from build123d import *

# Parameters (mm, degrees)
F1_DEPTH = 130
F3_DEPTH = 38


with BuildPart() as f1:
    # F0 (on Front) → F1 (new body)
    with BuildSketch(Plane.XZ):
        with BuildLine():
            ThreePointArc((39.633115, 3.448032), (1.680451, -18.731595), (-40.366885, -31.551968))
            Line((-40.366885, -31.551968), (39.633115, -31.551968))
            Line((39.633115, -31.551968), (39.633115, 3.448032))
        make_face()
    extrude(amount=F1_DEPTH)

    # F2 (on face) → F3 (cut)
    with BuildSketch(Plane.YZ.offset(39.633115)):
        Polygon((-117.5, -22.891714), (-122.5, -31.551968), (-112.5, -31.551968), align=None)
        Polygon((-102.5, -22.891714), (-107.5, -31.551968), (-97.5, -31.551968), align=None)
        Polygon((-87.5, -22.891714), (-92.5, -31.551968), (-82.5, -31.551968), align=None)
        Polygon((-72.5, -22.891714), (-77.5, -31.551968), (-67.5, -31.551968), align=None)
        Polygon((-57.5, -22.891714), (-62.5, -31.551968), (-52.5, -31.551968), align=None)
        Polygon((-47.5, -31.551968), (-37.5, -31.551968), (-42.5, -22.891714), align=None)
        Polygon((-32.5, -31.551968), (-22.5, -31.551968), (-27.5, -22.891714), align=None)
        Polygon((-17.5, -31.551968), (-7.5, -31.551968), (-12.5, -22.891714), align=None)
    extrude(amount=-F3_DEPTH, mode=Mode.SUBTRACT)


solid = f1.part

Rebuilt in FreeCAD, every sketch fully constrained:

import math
import FreeCAD as App
import Part
import Sketcher

V = App.Vector
Q = App.Units.Quantity


def add_polygon(sketch, points):
    """Adds a closed chain of lines whose ends are joined by coincident constraints."""
    first, n = sketch.GeometryCount, len(points)
    for a, b in zip(points, points[1:] + points[:1]):
        sketch.addGeometry(Part.LineSegment(App.Vector(*a, 0), App.Vector(*b, 0)), False)
    for i in range(n):
        sketch.addConstraint(Sketcher.Constraint("Coincident", first + i, 2, first + (i + 1) % n, 1))

doc = App.newDocument("Part")
body = doc.addObject("PartDesign::Body", "Body")

sketch1 = body.newObject("Sketcher::SketchObject", "Sketch")
sketch1.AttachmentSupport = (doc.getObject("XZ_Plane"), [""])
sketch1.MapMode = "FlatFace"
sketch1.addGeometry(Part.ArcOfCircle(Part.Circle(V(-74, 155, 0), V(0, 0, 1), 189), math.radians(-80), math.radians(-53)), False)
sketch1.addGeometry(Part.LineSegment(V(-40, -32, 0), V(40, -32, 0)), False)
sketch1.addGeometry(Part.LineSegment(V(40, -32, 0), V(40, 3, 0)), False)
sketch1.addConstraint(Sketcher.Constraint("Coincident", 0, 1, 1, 1))
sketch1.addConstraint(Sketcher.Constraint("Coincident", 1, 2, 2, 1))
sketch1.addConstraint(Sketcher.Constraint("Coincident", 2, 2, 0, 2))
sketch1.addConstraint(Sketcher.Constraint("Horizontal", 1))
sketch1.addConstraint(Sketcher.Constraint("Vertical", 2))
sketch1.addConstraint(Sketcher.Constraint("DistanceX", 1, 1, 1, 2, Q("80 mm")))
sketch1.addConstraint(Sketcher.Constraint("DistanceY", 2, 1, 2, 2, Q("35 mm")))
sketch1.addConstraint(Sketcher.Constraint("Radius", 0, Q("189.152686 mm")))
sketch1.addConstraint(Sketcher.Constraint("DistanceY", -1, 1, 2, 2, Q("3.448032 mm")))
sketch1.addConstraint(Sketcher.Constraint("DistanceX", 0, 3, -1, 1, Q("74.135507 mm")))
pad1 = body.newObject("PartDesign::Pad", "Pad")
pad1.Profile = sketch1
pad1.Length = 130

sketch2 = body.newObject("Sketcher::SketchObject", "Sketch001")
sketch2.AttachmentSupport = (doc.getObject("YZ_Plane"), [""])
sketch2.MapMode = "FlatFace"
sketch2.AttachmentOffset = App.Placement(V(0, 0, 39.633115), App.Rotation())
add_polygon(sketch2, [(-118, -23), (-122, -32), (-112, -32)])
add_polygon(sketch2, [(-102, -23), (-108, -32), (-98, -32)])
add_polygon(sketch2, [(-88, -23), (-92, -32), (-82, -32)])
add_polygon(sketch2, [(-72, -23), (-78, -32), (-68, -32)])
add_polygon(sketch2, [(-58, -23), (-62, -32), (-52, -32)])
add_polygon(sketch2, [(-48, -32), (-38, -32), (-42, -23)])
add_polygon(sketch2, [(-32, -32), (-22, -32), (-28, -23)])
add_polygon(sketch2, [(-18, -32), (-8, -32), (-12, -23)])
sketch2.addConstraint(Sketcher.Constraint("Horizontal", 1))
sketch2.addConstraint(Sketcher.Constraint("Horizontal", 4))
sketch2.addConstraint(Sketcher.Constraint("Horizontal", 7))
sketch2.addConstraint(Sketcher.Constraint("Horizontal", 10))
sketch2.addConstraint(Sketcher.Constraint("Horizontal", 13))
sketch2.addConstraint(Sketcher.Constraint("Horizontal", 15))
sketch2.addConstraint(Sketcher.Constraint("Horizontal", 18))
sketch2.addConstraint(Sketcher.Constraint("Horizontal", 21))
sketch2.addConstraint(Sketcher.Constraint("Parallel", 0, 3))
sketch2.addConstraint(Sketcher.Constraint("Parallel", 2, 5))
sketch2.addConstraint(Sketcher.Constraint("Parallel", 3, 6))
sketch2.addConstraint(Sketcher.Constraint("Parallel", 5, 8))
sketch2.addConstraint(Sketcher.Constraint("Parallel", 6, 9))
sketch2.addConstraint(Sketcher.Constraint("Parallel", 8, 11))
sketch2.addConstraint(Sketcher.Constraint("Parallel", 9, 12))
sketch2.addConstraint(Sketcher.Constraint("Parallel", 11, 14))
sketch2.addConstraint(Sketcher.Constraint("Parallel", 14, 16))
sketch2.addConstraint(Sketcher.Constraint("Parallel", 12, 17))
sketch2.addConstraint(Sketcher.Constraint("Parallel", 16, 19))
sketch2.addConstraint(Sketcher.Constraint("Parallel", 17, 20))
sketch2.addConstraint(Sketcher.Constraint("Parallel", 19, 22))
sketch2.addConstraint(Sketcher.Constraint("Parallel", 20, 23))
sketch2.addConstraint(Sketcher.Constraint("Horizontal", 1, 2, 3, 2))
sketch2.addConstraint(Sketcher.Constraint("Horizontal", 2, 2, 5, 2))
sketch2.addConstraint(Sketcher.Constraint("Horizontal", 4, 2, 6, 2))
sketch2.addConstraint(Sketcher.Constraint("Horizontal", 5, 2, 8, 2))
sketch2.addConstraint(Sketcher.Constraint("Horizontal", 7, 2, 9, 2))
sketch2.addConstraint(Sketcher.Constraint("Horizontal", 8, 2, 11, 2))
sketch2.addConstraint(Sketcher.Constraint("Horizontal", 10, 2, 12, 2))
sketch2.addConstraint(Sketcher.Constraint("Horizontal", 11, 2, 14, 2))
sketch2.addConstraint(Sketcher.Constraint("Horizontal", 13, 2, 15, 2))
sketch2.addConstraint(Sketcher.Constraint("Horizontal", 14, 2, 16, 2))
sketch2.addConstraint(Sketcher.Constraint("Horizontal", 17, 2, 18, 2))
sketch2.addConstraint(Sketcher.Constraint("Horizontal", 16, 2, 19, 2))
sketch2.addConstraint(Sketcher.Constraint("Horizontal", 20, 2, 21, 2))
sketch2.addConstraint(Sketcher.Constraint("Horizontal", 19, 2, 22, 2))
sketch2.addConstraint(Sketcher.Constraint("Equal", 0, 2))
sketch2.addConstraint(Sketcher.Constraint("DistanceX", 1, 1, 1, 2, Q("10 mm")))
sketch2.addConstraint(Sketcher.Constraint("Angle", 0, Q("-120 deg")))
sketch2.addConstraint(Sketcher.Constraint("DistanceX", 1, 2, 3, 2, Q("5 mm")))
sketch2.addConstraint(Sketcher.Constraint("DistanceX", 4, 2, 6, 2, Q("5 mm")))
sketch2.addConstraint(Sketcher.Constraint("DistanceX", 7, 2, 9, 2, Q("5 mm")))
sketch2.addConstraint(Sketcher.Constraint("DistanceX", 10, 2, 12, 2, Q("5 mm")))
sketch2.addConstraint(Sketcher.Constraint("DistanceX", 13, 2, 15, 2, Q("15 mm")))
sketch2.addConstraint(Sketcher.Constraint("DistanceX", 15, 2, 18, 2, Q("15 mm")))
sketch2.addConstraint(Sketcher.Constraint("DistanceX", 18, 2, 21, 2, Q("15 mm")))
sketch2.addConstraint(Sketcher.Constraint("DistanceX", 0, 2, -1, 1, Q("122.5 mm")))
sketch2.addConstraint(Sketcher.Constraint("DistanceY", 0, 2, -1, 1, Q("31.551968 mm")))
pocket1 = body.newObject("PartDesign::Pocket", "Pocket")
pocket1.Profile = sketch2
pocket1.Length = 38

doc.recompute()
